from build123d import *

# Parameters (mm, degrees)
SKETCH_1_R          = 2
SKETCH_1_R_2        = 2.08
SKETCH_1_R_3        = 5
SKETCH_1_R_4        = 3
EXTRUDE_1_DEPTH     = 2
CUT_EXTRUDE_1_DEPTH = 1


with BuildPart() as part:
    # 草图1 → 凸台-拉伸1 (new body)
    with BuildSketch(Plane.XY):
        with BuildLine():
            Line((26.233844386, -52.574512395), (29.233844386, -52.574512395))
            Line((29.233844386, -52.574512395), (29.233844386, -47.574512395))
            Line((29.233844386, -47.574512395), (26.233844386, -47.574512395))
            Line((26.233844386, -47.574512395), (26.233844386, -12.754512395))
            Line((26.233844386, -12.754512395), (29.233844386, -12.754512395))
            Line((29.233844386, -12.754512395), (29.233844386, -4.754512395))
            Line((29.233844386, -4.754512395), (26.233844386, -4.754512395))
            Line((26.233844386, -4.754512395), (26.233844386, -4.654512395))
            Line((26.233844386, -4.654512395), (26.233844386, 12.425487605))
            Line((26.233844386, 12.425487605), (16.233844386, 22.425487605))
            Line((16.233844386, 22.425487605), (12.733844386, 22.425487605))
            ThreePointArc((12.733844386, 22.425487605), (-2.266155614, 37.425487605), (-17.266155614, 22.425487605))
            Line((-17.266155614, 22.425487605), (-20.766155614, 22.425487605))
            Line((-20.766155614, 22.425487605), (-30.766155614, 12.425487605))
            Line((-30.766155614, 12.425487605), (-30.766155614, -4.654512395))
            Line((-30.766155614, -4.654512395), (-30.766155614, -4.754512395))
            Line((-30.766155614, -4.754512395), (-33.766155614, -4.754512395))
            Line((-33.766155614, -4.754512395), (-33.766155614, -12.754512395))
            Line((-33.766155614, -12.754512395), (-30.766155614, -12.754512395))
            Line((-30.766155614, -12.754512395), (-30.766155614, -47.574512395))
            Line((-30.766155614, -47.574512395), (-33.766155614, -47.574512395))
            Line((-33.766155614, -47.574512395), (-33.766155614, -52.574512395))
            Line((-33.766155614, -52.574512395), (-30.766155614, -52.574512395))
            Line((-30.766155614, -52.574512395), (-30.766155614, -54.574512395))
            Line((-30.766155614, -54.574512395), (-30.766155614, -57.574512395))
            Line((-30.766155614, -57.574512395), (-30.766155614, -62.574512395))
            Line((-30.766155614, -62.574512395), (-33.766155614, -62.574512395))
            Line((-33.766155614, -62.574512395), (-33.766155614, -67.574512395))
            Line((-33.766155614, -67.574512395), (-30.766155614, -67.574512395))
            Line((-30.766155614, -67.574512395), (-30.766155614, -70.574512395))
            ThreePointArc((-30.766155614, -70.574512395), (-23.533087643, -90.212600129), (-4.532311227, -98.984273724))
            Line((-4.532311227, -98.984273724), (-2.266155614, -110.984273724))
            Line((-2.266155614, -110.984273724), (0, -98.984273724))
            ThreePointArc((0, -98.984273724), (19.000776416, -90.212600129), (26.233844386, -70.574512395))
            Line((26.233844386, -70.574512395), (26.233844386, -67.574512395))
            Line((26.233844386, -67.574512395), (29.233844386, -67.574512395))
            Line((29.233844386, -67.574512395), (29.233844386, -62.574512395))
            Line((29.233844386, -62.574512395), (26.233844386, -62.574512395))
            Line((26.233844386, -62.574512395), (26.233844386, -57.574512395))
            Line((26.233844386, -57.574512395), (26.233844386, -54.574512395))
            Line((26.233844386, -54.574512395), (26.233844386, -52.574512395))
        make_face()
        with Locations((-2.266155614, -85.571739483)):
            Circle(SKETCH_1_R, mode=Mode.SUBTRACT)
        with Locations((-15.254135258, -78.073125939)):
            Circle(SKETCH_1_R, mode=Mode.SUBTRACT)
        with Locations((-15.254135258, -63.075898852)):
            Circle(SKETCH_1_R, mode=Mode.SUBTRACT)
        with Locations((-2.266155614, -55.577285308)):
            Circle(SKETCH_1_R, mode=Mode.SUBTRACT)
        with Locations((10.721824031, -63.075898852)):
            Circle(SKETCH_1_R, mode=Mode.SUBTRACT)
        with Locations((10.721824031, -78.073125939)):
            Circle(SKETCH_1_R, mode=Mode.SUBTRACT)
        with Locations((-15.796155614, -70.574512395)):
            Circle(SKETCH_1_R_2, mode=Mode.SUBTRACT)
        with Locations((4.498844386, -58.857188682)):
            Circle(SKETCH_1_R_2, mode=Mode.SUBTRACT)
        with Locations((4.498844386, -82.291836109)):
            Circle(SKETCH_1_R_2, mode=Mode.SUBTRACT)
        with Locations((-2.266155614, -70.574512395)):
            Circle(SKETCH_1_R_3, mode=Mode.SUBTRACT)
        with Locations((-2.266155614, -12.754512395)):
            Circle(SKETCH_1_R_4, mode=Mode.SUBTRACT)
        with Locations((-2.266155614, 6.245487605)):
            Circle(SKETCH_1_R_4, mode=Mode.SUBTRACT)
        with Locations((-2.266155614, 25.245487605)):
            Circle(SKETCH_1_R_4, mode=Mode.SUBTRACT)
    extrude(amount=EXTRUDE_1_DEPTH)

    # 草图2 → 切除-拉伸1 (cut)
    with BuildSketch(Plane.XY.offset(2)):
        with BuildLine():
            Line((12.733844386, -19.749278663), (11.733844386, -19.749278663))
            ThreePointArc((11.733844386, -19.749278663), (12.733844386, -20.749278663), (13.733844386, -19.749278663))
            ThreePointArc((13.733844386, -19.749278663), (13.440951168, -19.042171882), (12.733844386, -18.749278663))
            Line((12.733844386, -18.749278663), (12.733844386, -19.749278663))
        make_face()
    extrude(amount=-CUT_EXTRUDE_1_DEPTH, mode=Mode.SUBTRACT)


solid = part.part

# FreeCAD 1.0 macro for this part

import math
import FreeCAD as App
import Part
import Sketcher

doc = App.newDocument("Part")
body = doc.addObject("PartDesign::Body", "Body")

# Sketch on XY plane
sketch1 = doc.addObject("Sketcher::SketchObject", "Sketch")
body.addObject(sketch1)
sketch1.AttachmentSupport = (doc.XY_Plane, [""])
sketch1.MapMode = "FlatFace"
sketch1.addGeometry(Part.LineSegment(App.Vector(26.2, -52.6, 0), App.Vector(29.2, -52.6, 0)), False)
sketch1.addGeometry(Part.LineSegment(App.Vector(29.2, -52.6, 0), App.Vector(29.2, -47.6, 0)), False)
sketch1.addGeometry(Part.LineSegment(App.Vector(29.2, -47.6, 0), App.Vector(26.2, -47.6, 0)), False)
sketch1.addGeometry(Part.LineSegment(App.Vector(26.2, -47.6, 0), App.Vector(26.2, -12.8, 0)), False)
sketch1.addGeometry(Part.LineSegment(App.Vector(26.2, -12.8, 0), App.Vector(29.2, -12.8, 0)), False)
sketch1.addGeometry(Part.LineSegment(App.Vector(29.2, -12.8, 0), App.Vector(29.2, -4.8, 0)), False)
sketch1.addGeometry(Part.LineSegment(App.Vector(29.2, -4.8, 0), App.Vector(26.2, -4.8, 0)), False)
sketch1.addGeometry(Part.LineSegment(App.Vector(26.2, -4.8, 0), App.Vector(26.2, 12.4, 0)), False)
sketch1.addGeometry(Part.LineSegment(App.Vector(26.2, 12.4, 0), App.Vector(16.2, 22.4, 0)), False)
sketch1.addGeometry(Part.LineSegment(App.Vector(16.2, 22.4, 0), App.Vector(12.7, 22.4, 0)), False)
sketch1.addGeometry(Part.ArcOfCircle(Part.Circle(App.Vector(-2.3, 22.4, 0), App.Vector(0, 0, 1), 15), math.radians(0), math.radians(180)), False)
sketch1.addGeometry(Part.LineSegment(App.Vector(-17.3, 22.4, 0), App.Vector(-20.8, 22.4, 0)), False)
sketch1.addGeometry(Part.LineSegment(App.Vector(-20.8, 22.4, 0), App.Vector(-30.8, 12.4, 0)), False)
sketch1.addGeometry(Part.LineSegment(App.Vector(-30.8, 12.4, 0), App.Vector(-30.8, -4.8, 0)), False)
sketch1.addGeometry(Part.LineSegment(App.Vector(-30.8, -4.8, 0), App.Vector(-33.8, -4.8, 0)), False)
sketch1.addGeometry(Part.LineSegment(App.Vector(-33.8, -4.8, 0), App.Vector(-33.8, -12.8, 0)), False)
sketch1.addGeometry(Part.LineSegment(App.Vector(-33.8, -12.8, 0), App.Vector(-30.8, -12.8, 0)), False)
sketch1.addGeometry(Part.LineSegment(App.Vector(-30.8, -12.8, 0), App.Vector(-30.8, -47.6, 0)), False)
sketch1.addGeometry(Part.LineSegment(App.Vector(-30.8, -47.6, 0), App.Vector(-33.8, -47.6, 0)), False)
sketch1.addGeometry(Part.LineSegment(App.Vector(-33.8, -47.6, 0), App.Vector(-33.8, -52.6, 0)), False)
sketch1.addGeometry(Part.LineSegment(App.Vector(-33.8, -52.6, 0), App.Vector(-30.8, -52.6, 0)), False)
sketch1.addGeometry(Part.LineSegment(App.Vector(-30.8, -52.6, 0), App.Vector(-30.8, -62.6, 0)), False)
sketch1.addGeometry(Part.LineSegment(App.Vector(-30.8, -62.6, 0), App.Vector(-33.8, -62.6, 0)), False)
sketch1.addGeometry(Part.LineSegment(App.Vector(-33.8, -62.6, 0), App.Vector(-33.8, -67.6, 0)), False)
sketch1.addGeometry(Part.LineSegment(App.Vector(-33.8, -67.6, 0), App.Vector(-30.8, -67.6, 0)), False)
sketch1.addGeometry(Part.LineSegment(App.Vector(-30.8, -67.6, 0), App.Vector(-30.8, -70.6, 0)), False)
sketch1.addGeometry(Part.ArcOfCircle(Part.Circle(App.Vector(-3.4, -71.7, 0), App.Vector(0, 0, 1), 27.3), math.radians(178), math.radians(268)), False)
sketch1.addGeometry(Part.LineSegment(App.Vector(-4.5, -99, 0), App.Vector(-2.3, -111, 0)), False)
sketch1.addGeometry(Part.LineSegment(App.Vector(-2.3, -111, 0), App.Vector(0, -99, 0)), False)
sketch1.addGeometry(Part.ArcOfCircle(Part.Circle(App.Vector(-1.1, -71.7, 0), App.Vector(0, 0, 1), 27.3), math.radians(-88), math.radians(2)), False)
sketch1.addGeometry(Part.LineSegment(App.Vector(26.2, -70.6, 0), App.Vector(26.2, -67.6, 0)), False)
sketch1.addGeometry(Part.LineSegment(App.Vector(26.2, -67.6, 0), App.Vector(29.2, -67.6, 0)), False)
sketch1.addGeometry(Part.LineSegment(App.Vector(29.2, -67.6, 0), App.Vector(29.2, -62.6, 0)), False)
sketch1.addGeometry(Part.LineSegment(App.Vector(29.2, -62.6, 0), App.Vector(26.2, -62.6, 0)), False)
sketch1.addGeometry(Part.LineSegment(App.Vector(26.2, -62.6, 0), App.Vector(26.2, -52.6, 0)), False)
sketch1.addGeometry(Part.Circle(App.Vector(-15.3, -78.1, 0), App.Vector(0, 0, 1), 2), False)
sketch1.addGeometry(Part.Circle(App.Vector(-15.8, -70.6, 0), App.Vector(0, 0, 1), 2.1), False)
sketch1.addGeometry(Part.Circle(App.Vector(-15.3, -63.1, 0), App.Vector(0, 0, 1), 2), False)
sketch1.addGeometry(Part.Circle(App.Vector(-2.3, -85.6, 0), App.Vector(0, 0, 1), 2), False)
sketch1.addGeometry(Part.Circle(App.Vector(4.5, -82.3, 0), App.Vector(0, 0, 1), 2.1), False)
sketch1.addGeometry(Part.Circle(App.Vector(-2.3, -70.6, 0), App.Vector(0, 0, 1), 5), False)
sketch1.addGeometry(Part.Circle(App.Vector(4.5, -58.9, 0), App.Vector(0, 0, 1), 2.1), False)
sketch1.addGeometry(Part.Circle(App.Vector(10.7, -78.1, 0), App.Vector(0, 0, 1), 2), False)
sketch1.addGeometry(Part.Circle(App.Vector(10.7, -63.1, 0), App.Vector(0, 0, 1), 2), False)
sketch1.addGeometry(Part.Circle(App.Vector(-2.3, -55.6, 0), App.Vector(0, 0, 1), 2), False)
sketch1.addGeometry(Part.Circle(App.Vector(-2.3, -12.8, 0), App.Vector(0, 0, 1), 3), False)
sketch1.addGeometry(Part.Circle(App.Vector(-2.3, 6.2, 0), App.Vector(0, 0, 1), 3), False)
sketch1.addGeometry(Part.Circle(App.Vector(-2.3, 25.2, 0), App.Vector(0, 0, 1), 3), False)
sketch1.addConstraint(Sketcher.Constraint("Coincident", 0, 2, 1, 1))
sketch1.addConstraint(Sketcher.Constraint("Coincident", 1, 2, 2, 1))
sketch1.addConstraint(Sketcher.Constraint("Coincident", 2, 2, 3, 1))
sketch1.addConstraint(Sketcher.Constraint("Coincident", 3, 2, 4, 1))
sketch1.addConstraint(Sketcher.Constraint("Coincident", 4, 2, 5, 1))
sketch1.addConstraint(Sketcher.Constraint("Coincident", 5, 2, 6, 1))
sketch1.addConstraint(Sketcher.Constraint("Coincident", 6, 2, 7, 1))
sketch1.addConstraint(Sketcher.Constraint("Coincident", 7, 2, 8, 1))
sketch1.addConstraint(Sketcher.Constraint("Coincident", 8, 2, 9, 1))
sketch1.addConstraint(Sketcher.Constraint("Coincident", 9, 2, 10, 1))
sketch1.addConstraint(Sketcher.Constraint("Coincident", 10, 2, 11, 1))
sketch1.addConstraint(Sketcher.Constraint("Coincident", 11, 2, 12, 1))
sketch1.addConstraint(Sketcher.Constraint("Coincident", 12, 2, 13, 1))
sketch1.addConstraint(Sketcher.Constraint("Coincident", 13, 2, 14, 1))
sketch1.addConstraint(Sketcher.Constraint("Coincident", 14, 2, 15, 1))
sketch1.addConstraint(Sketcher.Constraint("Coincident", 15, 2, 16, 1))
sketch1.addConstraint(Sketcher.Constraint("Coincident", 16, 2, 17, 1))
sketch1.addConstraint(Sketcher.Constraint("Coincident", 17, 2, 18, 1))
sketch1.addConstraint(Sketcher.Constraint("Coincident", 18, 2, 19, 1))
sketch1.addConstraint(Sketcher.Constraint("Coincident", 19, 2, 20, 1))
sketch1.addConstraint(Sketcher.Constraint("Coincident", 20, 2, 21, 1))
sketch1.addConstraint(Sketcher.Constraint("Coincident", 21, 2, 22, 1))
sketch1.addConstraint(Sketcher.Constraint("Coincident", 22, 2, 23, 1))
sketch1.addConstraint(Sketcher.Constraint("Coincident", 23, 2, 24, 1))
sketch1.addConstraint(Sketcher.Constraint("Coincident", 24, 2, 25, 1))
sketch1.addConstraint(Sketcher.Constraint("Coincident", 25, 2, 26, 1))
sketch1.addConstraint(Sketcher.Constraint("Coincident", 26, 2, 27, 1))
sketch1.addConstraint(Sketcher.Constraint("Coincident", 27, 2, 28, 1))
sketch1.addConstraint(Sketcher.Constraint("Coincident", 28, 2, 29, 1))
sketch1.addConstraint(Sketcher.Constraint("Coincident", 29, 2, 30, 1))
sketch1.addConstraint(Sketcher.Constraint("Coincident", 30, 2, 31, 1))
sketch1.addConstraint(Sketcher.Constraint("Coincident", 31, 2, 32, 1))
sketch1.addConstraint(Sketcher.Constraint("Coincident", 32, 2, 33, 1))
sketch1.addConstraint(Sketcher.Constraint("Coincident", 33, 2, 34, 1))
sketch1.addConstraint(Sketcher.Constraint("Coincident", 34, 2, 0, 1))
sketch1.addConstraint(Sketcher.Constraint("Horizontal", 0))
sketch1.addConstraint(Sketcher.Constraint("Vertical", 1))
sketch1.addConstraint(Sketcher.Constraint("Horizontal", 2))
sketch1.addConstraint(Sketcher.Constraint("Vertical", 3))
sketch1.addConstraint(Sketcher.Constraint("Horizontal", 4))
sketch1.addConstraint(Sketcher.Constraint("Vertical", 5))
sketch1.addConstraint(Sketcher.Constraint("Horizontal", 6))
sketch1.addConstraint(Sketcher.Constraint("Vertical", 7))
sketch1.addConstraint(Sketcher.Constraint("Horizontal", 9))
sketch1.addConstraint(Sketcher.Constraint("Horizontal", 11))
sketch1.addConstraint(Sketcher.Constraint("Vertical", 13))
sketch1.addConstraint(Sketcher.Constraint("Horizontal", 14))
sketch1.addConstraint(Sketcher.Constraint("Vertical", 15))
sketch1.addConstraint(Sketcher.Constraint("Horizontal", 16))
sketch1.addConstraint(Sketcher.Constraint("Vertical", 17))
sketch1.addConstraint(Sketcher.Constraint("Horizontal", 18))
sketch1.addConstraint(Sketcher.Constraint("Vertical", 19))
sketch1.addConstraint(Sketcher.Constraint("Horizontal", 20))
sketch1.addConstraint(Sketcher.Constraint("Vertical", 21))
sketch1.addConstraint(Sketcher.Constraint("Horizontal", 22))
sketch1.addConstraint(Sketcher.Constraint("Vertical", 23))
sketch1.addConstraint(Sketcher.Constraint("Horizontal", 24))
sketch1.addConstraint(Sketcher.Constraint("Vertical", 25))
sketch1.addConstraint(Sketcher.Constraint("Vertical", 30))
sketch1.addConstraint(Sketcher.Constraint("Horizontal", 31))
sketch1.addConstraint(Sketcher.Constraint("Vertical", 32))
sketch1.addConstraint(Sketcher.Constraint("Horizontal", 33))
sketch1.addConstraint(Sketcher.Constraint("Vertical", 34))
sketch1.addConstraint(Sketcher.Constraint("Equal", 26, 29))
sketch1.addConstraint(Sketcher.Constraint("Equal", 35, 37))
sketch1.addConstraint(Sketcher.Constraint("Equal", 37, 38))
sketch1.addConstraint(Sketcher.Constraint("Equal", 36, 39))
sketch1.addConstraint(Sketcher.Constraint("Equal", 39, 41))
sketch1.addConstraint(Sketcher.Constraint("Equal", 38, 42))
sketch1.addConstraint(Sketcher.Constraint("Equal", 42, 43))
sketch1.addConstraint(Sketcher.Constraint("Equal", 43, 44))
sketch1.addConstraint(Sketcher.Constraint("Equal", 45, 46))
sketch1.addConstraint(Sketcher.Constraint("Equal", 46, 47))
sketch1.addConstraint(Sketcher.Constraint("PointOnObject", 28, 2, -2))
sketch1.addConstraint(Sketcher.Constraint("Perpendicular", 8, 12))
sketch1.addConstraint(Sketcher.Constraint("Horizontal", 26, 3, 29, 3))
sketch1.addConstraint(Sketcher.Constraint("Horizontal", 36, 3, 40, 3))
sketch1.addConstraint(Sketcher.Constraint("Horizontal", 35, 3, 42, 3))
sketch1.addConstraint(Sketcher.Constraint("Horizontal", 37, 3, 43, 3))
sketch1.addConstraint(Sketcher.Constraint("Horizontal", 45, 3, 3, 2))
sketch1.addConstraint(Sketcher.Constraint("Horizontal", 10, 3, 8, 2))
sketch1.addConstraint(Sketcher.Constraint("Horizontal", 9, 2, 10, 2))
sketch1.addConstraint(Sketcher.Constraint("Horizontal", 7, 2, 12, 2))
sketch1.addConstraint(Sketcher.Constraint("Horizontal", 6, 2, 13, 2))
sketch1.addConstraint(Sketcher.Constraint("Horizontal", 4, 2, 15, 2))
sketch1.addConstraint(Sketcher.Constraint("Horizontal", 2, 2, 17, 2))
sketch1.addConstraint(Sketcher.Constraint("Horizontal", 0, 2, 19, 2))
sketch1.addConstraint(Sketcher.Constraint("Horizontal", 40, 3, 25, 2))
sketch1.addConstraint(Sketcher.Constraint("Horizontal", 26, 2, 28, 2))
sketch1.addConstraint(Sketcher.Constraint("Horizontal", 25, 2, 29, 2))
sketch1.addConstraint(Sketcher.Constraint("Horizontal", 24, 2, 30, 2))
sketch1.addConstraint(Sketcher.Constraint("Horizontal", 22, 2, 32, 2))
sketch1.addConstraint(Sketcher.Constraint("Vertical", 35, 3, 37, 3))
sketch1.addConstraint(Sketcher.Constraint("Vertical", 10, 3, 38, 3))
sketch1.addConstraint(Sketcher.Constraint("Vertical", 38, 3, 40, 3))
sketch1.addConstraint(Sketcher.Constraint("Vertical", 39, 3, 41, 3))
sketch1.addConstraint(Sketcher.Constraint("Vertical", 42, 3, 43, 3))
sketch1.addConstraint(Sketcher.Constraint("Vertical", 40, 3, 44, 3))
sketch1.addConstraint(Sketcher.Constraint("Vertical", 44, 3, 45, 3))
sketch1.addConstraint(Sketcher.Constraint("Vertical", 45, 3, 46, 3))
sketch1.addConstraint(Sketcher.Constraint("Vertical", 46, 3, 47, 3))
sketch1.addConstraint(Sketcher.Constraint("Vertical", 1, 2, 4, 2))
sketch1.addConstraint(Sketcher.Constraint("Vertical", 3, 2, 6, 2))
sketch1.addConstraint(Sketcher.Constraint("Vertical", 13, 2, 16, 2))
sketch1.addConstraint(Sketcher.Constraint("Vertical", 15, 2, 18, 2))
sketch1.addConstraint(Sketcher.Constraint("Vertical", 17, 2, 20, 2))
sketch1.addConstraint(Sketcher.Constraint("Vertical", 19, 2, 22, 2))
sketch1.addConstraint(Sketcher.Constraint("Vertical", 21, 2, 24, 2))
sketch1.addConstraint(Sketcher.Constraint("Vertical", 47, 3, 27, 2))
sketch1.addConstraint(Sketcher.Constraint("Vertical", 7, 2, 29, 2))
sketch1.addConstraint(Sketcher.Constraint("Vertical", 5, 2, 31, 2))
sketch1.addConstraint(Sketcher.Constraint("Vertical", 30, 2, 33, 2))
sketch1.addConstraint(Sketcher.Constraint("Equal", 9, 11))
sketch1.addConstraint(Sketcher.Constraint("Equal", 6, 14))
sketch1.addConstraint(Sketcher.Constraint("Equal", 19, 23))
sketch1.addConstraint(Sketcher.Constraint("Equal", 33, 25))
sketch1.addConstraint(Sketcher.Constraint("Equal", 8, 12))
sketch1.addConstraint(Sketcher.Constraint("Diameter", 35, 4.0))
sketch1.addConstraint(Sketcher.Constraint("Diameter", 40, 10.0))
sketch1.addConstraint(Sketcher.Constraint("Diameter", 45, 6.0))
sketch1.addConstraint(Sketcher.Constraint("Radius", 10, 15.0))
sketch1.addConstraint(Sketcher.Constraint("Diameter", 36, 4.16))
sketch1.addConstraint(Sketcher.Constraint("DistanceX", 0, 1, 0, 2, 3.0))
sketch1.addConstraint(Sketcher.Constraint("DistanceY", 1, 1, 1, 2, 5.0))
sketch1.addConstraint(Sketcher.Constraint("DistanceY", 5, 1, 5, 2, 8.0))
sketch1.addConstraint(Sketcher.Constraint("DistanceY", 21, 2, 21, 1, 10.0))
sketch1.addConstraint(Sketcher.Constraint("DistanceX", 9, 2, 9, 1, 3.5))
sketch1.addConstraint(Sketcher.Constraint("DistanceY", 36, 3, 10, 3, 93.0))
sketch1.addConstraint(Sketcher.Constraint("DistanceY", 45, 3, 46, 3, 19.0))
sketch1.addConstraint(Sketcher.Constraint("DistanceY", 46, 3, 47, 3, 19.0))
sketch1.addConstraint(Sketcher.Constraint("DistanceX", 8, 2, 7, 2, 10.0))
sketch1.addConstraint(Sketcher.Constraint("DistanceY", 27, 2, 26, 2, 12.0))
sketch1.addConstraint(Sketcher.Constraint("DistanceY", 3, 1, 3, 2, 34.82))
sketch1.addConstraint(Sketcher.Constraint("DistanceX", 36, 3, 10, 3, 13.53))
sketch1.addConstraint(Sketcher.Constraint("Radius", 26, 27.343456))
sketch1.addConstraint(Sketcher.Constraint("DistanceX", 38, 3, 39, 3, 6.765))
sketch1.addConstraint(Sketcher.Constraint("DistanceY", 37, 3, -1, 1, 63.075899))
sketch1.addConstraint(Sketcher.Constraint("DistanceY", 26, 3, -1, 1, 71.662471))
sketch1.addConstraint(Sketcher.Constraint("DistanceX", 29, 3, -1, 1, 1.087958))
sketch1.addConstraint(Sketcher.Constraint("DistanceY", 38, 3, -1, 1, 85.571739))
sketch1.addConstraint(Sketcher.Constraint("DistanceY", 41, 3, -1, 1, 58.857189))
sketch1.addConstraint(Sketcher.Constraint("DistanceY", 26, 3, 10, 3, 94.087958))
sketch1.addConstraint(Sketcher.Constraint("DistanceX", 35, 3, 10, 3, 12.98798))
sketch1.addConstraint(Sketcher.Constraint("DistanceY", 39, 3, 35, 3, 4.21871))
sketch1.addConstraint(Sketcher.Constraint("DistanceX", 39, 3, 42, 3, 6.22298))
sketch1.addConstraint(Sketcher.Constraint("DistanceY", 35, 3, -1, 1, 78.073126))
sketch1.addConstraint(Sketcher.Constraint("DistanceY", 44, 3, -1, 1, 55.577285))
pad1 = doc.addObject("PartDesign::Pad", "Pad")
body.addObject(pad1)
pad1.Profile = sketch1
pad1.Length = 2

# Sketch on XY plane
sketch2 = doc.addObject("Sketcher::SketchObject", "Sketch001")
body.addObject(sketch2)
sketch2.AttachmentSupport = (doc.XY_Plane, [""])
sketch2.MapMode = "FlatFace"
sketch2.AttachmentOffset = App.Placement(App.Vector(0, 0, 2), App.Rotation())
sketch2.addGeometry(Part.LineSegment(App.Vector(12.7, -19.7, 0), App.Vector(11.7, -19.7, 0)), False)
sketch2.addGeometry(Part.ArcOfCircle(Part.Circle(App.Vector(12.7, -19.7, 0), App.Vector(0, 0, 1), 1), math.radians(180), math.radians(360)), False)
sketch2.addGeometry(Part.ArcOfCircle(Part.Circle(App.Vector(12.7, -19.7, 0), App.Vector(0, 0, 1), 1), math.radians(0), math.radians(90)), False)
sketch2.addGeometry(Part.LineSegment(App.Vector(12.7, -18.7, 0), App.Vector(12.7, -19.7, 0)), False)
sketch2.addConstraint(Sketcher.Constraint("Coincident", 0, 2, 1, 1))
sketch2.addConstraint(Sketcher.Constraint("Tangent", 1, 2, 2, 1))
sketch2.addConstraint(Sketcher.Constraint("Coincident", 2, 2, 3, 1))
sketch2.addConstraint(Sketcher.Constraint("Coincident", 3, 2, 0, 1))
sketch2.addConstraint(Sketcher.Constraint("Horizontal", 0))
sketch2.addConstraint(Sketcher.Constraint("Vertical", 3))
sketch2.addConstraint(Sketcher.Constraint("Coincident", 3, 2, 1, 3))
sketch2.addConstraint(Sketcher.Constraint("Equal", 1, 2))
sketch2.addConstraint(Sketcher.Constraint("Horizontal", 0, 2, 1, 2))
sketch2.addConstraint(Sketcher.Constraint("Radius", 1, 1.0))
sketch2.addConstraint(Sketcher.Constraint("DistanceY", 1, 3, -1, 1, 19.749279))
sketch2.addConstraint(Sketcher.Constraint("DistanceX", -1, 1, 1, 3, 12.733844))
pocket1 = doc.addObject("PartDesign::Pocket", "Pocket")
body.addObject(pocket1)
pocket1.Profile = sketch2
pocket1.Length = 1

doc.recompute()
